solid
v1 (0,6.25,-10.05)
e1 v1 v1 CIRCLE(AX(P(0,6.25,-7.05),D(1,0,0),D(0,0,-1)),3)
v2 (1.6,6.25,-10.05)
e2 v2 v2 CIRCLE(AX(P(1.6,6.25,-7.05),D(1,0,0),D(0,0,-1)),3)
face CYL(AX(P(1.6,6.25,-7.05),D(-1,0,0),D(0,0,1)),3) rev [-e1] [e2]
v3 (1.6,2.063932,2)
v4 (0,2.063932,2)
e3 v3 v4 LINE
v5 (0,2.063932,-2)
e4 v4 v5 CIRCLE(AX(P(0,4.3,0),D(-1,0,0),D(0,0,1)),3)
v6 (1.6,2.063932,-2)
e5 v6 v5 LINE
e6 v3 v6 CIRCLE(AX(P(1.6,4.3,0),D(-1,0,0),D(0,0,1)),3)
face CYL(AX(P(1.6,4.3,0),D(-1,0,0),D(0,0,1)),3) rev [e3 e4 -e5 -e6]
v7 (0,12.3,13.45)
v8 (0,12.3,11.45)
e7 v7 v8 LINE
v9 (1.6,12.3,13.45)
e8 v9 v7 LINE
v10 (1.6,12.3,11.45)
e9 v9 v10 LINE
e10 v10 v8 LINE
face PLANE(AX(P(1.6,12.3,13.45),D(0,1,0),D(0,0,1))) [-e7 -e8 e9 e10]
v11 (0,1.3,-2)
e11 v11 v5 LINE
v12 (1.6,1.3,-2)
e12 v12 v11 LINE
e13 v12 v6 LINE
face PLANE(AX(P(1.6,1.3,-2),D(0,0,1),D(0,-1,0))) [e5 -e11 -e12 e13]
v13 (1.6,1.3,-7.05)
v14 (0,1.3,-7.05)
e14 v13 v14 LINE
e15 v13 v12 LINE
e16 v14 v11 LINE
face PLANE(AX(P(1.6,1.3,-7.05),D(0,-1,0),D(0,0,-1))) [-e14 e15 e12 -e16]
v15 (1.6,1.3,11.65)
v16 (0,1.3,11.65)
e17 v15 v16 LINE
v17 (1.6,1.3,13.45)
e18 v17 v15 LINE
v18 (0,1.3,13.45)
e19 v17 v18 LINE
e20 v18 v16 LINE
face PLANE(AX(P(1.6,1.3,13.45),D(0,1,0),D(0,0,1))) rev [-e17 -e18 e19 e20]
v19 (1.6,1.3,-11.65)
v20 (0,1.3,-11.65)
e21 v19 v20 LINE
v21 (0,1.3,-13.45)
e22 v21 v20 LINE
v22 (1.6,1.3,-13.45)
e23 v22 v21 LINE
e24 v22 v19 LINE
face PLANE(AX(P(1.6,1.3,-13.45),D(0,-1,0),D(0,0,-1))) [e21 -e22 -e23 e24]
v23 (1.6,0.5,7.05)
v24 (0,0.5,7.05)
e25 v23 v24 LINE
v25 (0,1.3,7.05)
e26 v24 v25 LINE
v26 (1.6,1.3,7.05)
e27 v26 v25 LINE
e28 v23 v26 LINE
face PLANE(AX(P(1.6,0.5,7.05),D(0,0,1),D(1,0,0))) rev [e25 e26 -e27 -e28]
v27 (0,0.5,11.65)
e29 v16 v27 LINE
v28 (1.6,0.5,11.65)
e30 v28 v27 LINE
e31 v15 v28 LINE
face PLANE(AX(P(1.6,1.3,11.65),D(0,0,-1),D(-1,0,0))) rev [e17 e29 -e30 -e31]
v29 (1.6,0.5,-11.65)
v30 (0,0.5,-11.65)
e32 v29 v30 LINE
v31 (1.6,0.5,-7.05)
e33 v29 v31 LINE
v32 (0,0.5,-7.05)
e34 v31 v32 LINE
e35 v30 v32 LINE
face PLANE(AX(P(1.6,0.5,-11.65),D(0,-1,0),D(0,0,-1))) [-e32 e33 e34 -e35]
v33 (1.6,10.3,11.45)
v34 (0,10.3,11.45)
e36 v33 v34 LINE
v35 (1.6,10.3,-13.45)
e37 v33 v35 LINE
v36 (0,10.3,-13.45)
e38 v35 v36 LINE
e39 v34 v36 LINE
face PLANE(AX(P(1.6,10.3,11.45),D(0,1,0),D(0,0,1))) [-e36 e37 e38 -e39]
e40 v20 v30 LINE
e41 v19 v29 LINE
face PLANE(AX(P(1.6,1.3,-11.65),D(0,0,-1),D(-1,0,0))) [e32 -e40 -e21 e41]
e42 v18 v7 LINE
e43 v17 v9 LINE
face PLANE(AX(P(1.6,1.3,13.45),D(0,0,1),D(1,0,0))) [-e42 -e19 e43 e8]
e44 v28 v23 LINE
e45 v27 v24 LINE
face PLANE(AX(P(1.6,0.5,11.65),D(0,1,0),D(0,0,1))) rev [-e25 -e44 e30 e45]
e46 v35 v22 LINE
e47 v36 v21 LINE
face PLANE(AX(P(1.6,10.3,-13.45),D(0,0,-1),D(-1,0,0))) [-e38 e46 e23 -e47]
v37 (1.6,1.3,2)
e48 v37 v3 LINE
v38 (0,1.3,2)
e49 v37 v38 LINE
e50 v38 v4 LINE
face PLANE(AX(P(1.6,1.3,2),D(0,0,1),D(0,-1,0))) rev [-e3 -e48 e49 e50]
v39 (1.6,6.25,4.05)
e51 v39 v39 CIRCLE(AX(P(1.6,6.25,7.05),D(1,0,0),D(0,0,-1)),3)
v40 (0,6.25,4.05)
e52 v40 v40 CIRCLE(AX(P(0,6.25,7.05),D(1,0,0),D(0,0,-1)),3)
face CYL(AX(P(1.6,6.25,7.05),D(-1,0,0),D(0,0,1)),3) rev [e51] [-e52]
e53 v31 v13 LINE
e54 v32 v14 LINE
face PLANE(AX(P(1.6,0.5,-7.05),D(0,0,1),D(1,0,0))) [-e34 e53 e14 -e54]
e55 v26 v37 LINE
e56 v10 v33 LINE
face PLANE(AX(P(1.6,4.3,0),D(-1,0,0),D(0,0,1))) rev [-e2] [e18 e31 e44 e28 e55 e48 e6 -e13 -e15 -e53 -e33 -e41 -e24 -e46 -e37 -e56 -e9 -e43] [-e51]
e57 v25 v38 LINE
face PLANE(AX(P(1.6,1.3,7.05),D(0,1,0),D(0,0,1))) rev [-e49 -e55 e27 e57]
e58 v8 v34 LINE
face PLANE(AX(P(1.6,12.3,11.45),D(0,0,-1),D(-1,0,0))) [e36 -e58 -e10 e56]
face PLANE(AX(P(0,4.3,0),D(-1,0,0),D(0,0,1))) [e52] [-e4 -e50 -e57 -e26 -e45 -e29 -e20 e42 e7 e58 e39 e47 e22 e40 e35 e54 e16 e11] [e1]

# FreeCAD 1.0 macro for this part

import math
import FreeCAD as App
import Part
import Sketcher
from FreeCAD import Vector
Q = App.Units.Quantity

doc = App.newDocument("Part")
body = doc.addObject("PartDesign::Body", "Body")

sketch1 = body.newObject("Sketcher::SketchObject", "Sketch")
sketch1.AttachmentSupport = (doc.getObject("YZ_Plane"), [""])
sketch1.MapMode = "FlatFace"
sketch1.addGeometry(Part.LineSegment(Vector(1.3, 13.45, 0), Vector(1.3, 11.65, 0)), False)
sketch1.addGeometry(Part.LineSegment(Vector(1.3, 11.65, 0), Vector(0.5, 11.65, 0)), False)
sketch1.addGeometry(Part.LineSegment(Vector(0.5, 11.65, 0), Vector(0.5, 7.05, 0)), False)
sketch1.addGeometry(Part.LineSegment(Vector(0.5, 7.05, 0), Vector(1.3, 7.05, 0)), False)
sketch1.addGeometry(Part.LineSegment(Vector(1.3, 7.05, 0), Vector(1.3, 2, 0)), False)
sketch1.addGeometry(Part.LineSegment(Vector(1.3, 2, 0), Vector(2.063932, 2, 0)), False)
sketch1.addGeometry(Part.ArcOfCircle(Part.Circle(Vector(4.3, 0, 0), Vector(0, 0, 1), 3), math.radians(-138.189685), math.radians(138.189685)), False)
sketch1.addGeometry(Part.LineSegment(Vector(2.063932, -2, 0), Vector(1.3, -2, 0)), False)
sketch1.addGeometry(Part.LineSegment(Vector(1.3, -2, 0), Vector(1.3, -7.05, 0)), False)
sketch1.addGeometry(Part.LineSegment(Vector(1.3, -7.05, 0), Vector(0.5, -7.05, 0)), False)
sketch1.addGeometry(Part.LineSegment(Vector(0.5, -7.05, 0), Vector(0.5, -11.65, 0)), False)
sketch1.addGeometry(Part.LineSegment(Vector(0.5, -11.65, 0), Vector(1.3, -11.65, 0)), False)
sketch1.addGeometry(Part.LineSegment(Vector(1.3, -11.65, 0), Vector(1.3, -13.45, 0)), False)
sketch1.addGeometry(Part.LineSegment(Vector(1.3, -13.45, 0), Vector(10.3, -13.45, 0)), False)
sketch1.addGeometry(Part.LineSegment(Vector(10.3, -13.45, 0), Vector(10.3, 11.45, 0)), False)
sketch1.addGeometry(Part.LineSegment(Vector(10.3, 11.45, 0), Vector(12.3, 11.45, 0)), False)
sketch1.addGeometry(Part.LineSegment(Vector(12.3, 11.45, 0), Vector(12.3, 13.45, 0)), False)
sketch1.addGeometry(Part.LineSegment(Vector(12.3, 13.45, 0), Vector(1.3, 13.45, 0)), False)
sketch1.addGeometry(Part.Circle(Vector(6.25, 7.05, 0), Vector(0, 0, 1), 3), False)
sketch1.addGeometry(Part.Circle(Vector(6.25, -7.05, 0), Vector(0, 0, 1), 3), False)
sketch1.addConstraint(Sketcher.Constraint("Coincident", 0, 2, 1, 1))
sketch1.addConstraint(Sketcher.Constraint("Coincident", 1, 2, 2, 1))
sketch1.addConstraint(Sketcher.Constraint("Coincident", 2, 2, 3, 1))
sketch1.addConstraint(Sketcher.Constraint("Coincident", 3, 2, 4, 1))
sketch1.addConstraint(Sketcher.Constraint("Coincident", 4, 2, 5, 1))
sketch1.addConstraint(Sketcher.Constraint("Coincident", 5, 2, 6, 2))
sketch1.addConstraint(Sketcher.Constraint("Coincident", 6, 1, 7, 1))
sketch1.addConstraint(Sketcher.Constraint("Coincident", 7, 2, 8, 1))
sketch1.addConstraint(Sketcher.Constraint("Coincident", 8, 2, 9, 1))
sketch1.addConstraint(Sketcher.Constraint("Coincident", 9, 2, 10, 1))
sketch1.addConstraint(Sketcher.Constraint("Coincident", 10, 2, 11, 1))
sketch1.addConstraint(Sketcher.Constraint("Coincident", 11, 2, 12, 1))
sketch1.addConstraint(Sketcher.Constraint("Coincident", 12, 2, 13, 1))
sketch1.addConstraint(Sketcher.Constraint("Coincident", 13, 2, 14, 1))
sketch1.addConstraint(Sketcher.Constraint("Coincident", 14, 2, 15, 1))
sketch1.addConstraint(Sketcher.Constraint("Coincident", 15, 2, 16, 1))
sketch1.addConstraint(Sketcher.Constraint("Coincident", 16, 2, 17, 1))
sketch1.addConstraint(Sketcher.Constraint("Coincident", 17, 2, 0, 1))
sketch1.addConstraint(Sketcher.Constraint("Vertical", 0))
sketch1.addConstraint(Sketcher.Constraint("Horizontal", 1))
sketch1.addConstraint(Sketcher.Constraint("Vertical", 2))
sketch1.addConstraint(Sketcher.Constraint("Horizontal", 3))
sketch1.addConstraint(Sketcher.Constraint("Vertical", 4))
sketch1.addConstraint(Sketcher.Constraint("Horizontal", 5))
sketch1.addConstraint(Sketcher.Constraint("Horizontal", 7))
sketch1.addConstraint(Sketcher.Constraint("Vertical", 8))
sketch1.addConstraint(Sketcher.Constraint("Horizontal", 9))
sketch1.addConstraint(Sketcher.Constraint("Vertical", 10))
sketch1.addConstraint(Sketcher.Constraint("Horizontal", 11))
sketch1.addConstraint(Sketcher.Constraint("Vertical", 12))
sketch1.addConstraint(Sketcher.Constraint("Horizontal", 13))
sketch1.addConstraint(Sketcher.Constraint("Vertical", 14))
sketch1.addConstraint(Sketcher.Constraint("Horizontal", 15))
sketch1.addConstraint(Sketcher.Constraint("Vertical", 16))
sketch1.addConstraint(Sketcher.Constraint("Horizontal", 17))
sketch1.addConstraint(Sketcher.Constraint("Equal", 6, 18))
sketch1.addConstraint(Sketcher.Constraint("Equal", 18, 19))
sketch1.addConstraint(Sketcher.Constraint("Symmetric", 18, 3, 19, 3, -1))
sketch1.addConstraint(Sketcher.Constraint("Symmetric", 5, 2, 6, 1, -1))
sketch1.addConstraint(Sketcher.Constraint("Symmetric", 3, 2, 8, 2, -1))
sketch1.addConstraint(Sketcher.Constraint("Symmetric", 1, 2, 10, 2, -1))
sketch1.addConstraint(Sketcher.Constraint("Symmetric", 12, 2, 17, 2, -1))
sketch1.addConstraint(Sketcher.Constraint("Horizontal", 18, 3, 2, 2))
sketch1.addConstraint(Sketcher.Constraint("Vertical", 0, 2, 3, 2))
sketch1.addConstraint(Sketcher.Constraint("Equal", 15, 16))
sketch1.addConstraint(Sketcher.Constraint("Diameter", 18, Q("6 mm")))
sketch1.addConstraint(Sketcher.Constraint("DistanceX", 13, 1, 13, 2, Q("9 mm")))
sketch1.addConstraint(Sketcher.Constraint("DistanceX", 15, 1, 15, 2, Q("2 mm")))
sketch1.addConstraint(Sketcher.Constraint("DistanceX", 1, 2, 1, 1, Q("0.8 mm")))
sketch1.addConstraint(Sketcher.Constraint("DistanceY", 0, 2, 0, 1, Q("1.8 mm")))
sketch1.addConstraint(Sketcher.Constraint("DistanceY", 2, 2, 2, 1, Q("4.6 mm")))
sketch1.addConstraint(Sketcher.Constraint("DistanceY", 14, 1, 14, 2, Q("24.9 mm")))
sketch1.addConstraint(Sketcher.Constraint("DistanceY", -1, 1, 4, 2, Q("2 mm")))
sketch1.addConstraint(Sketcher.Constraint("DistanceX", 0, 2, 6, 3, Q("3 mm")))
sketch1.addConstraint(Sketcher.Constraint("DistanceX", -1, 1, 6, 3, Q("4.3 mm")))
sketch1.addConstraint(Sketcher.Constraint("DistanceX", -1, 1, 18, 3, Q("6.25 mm")))
pad1 = body.newObject("PartDesign::Pad", "Pad")
pad1.Profile = sketch1
pad1.Length = 1.6

doc.recompute()
